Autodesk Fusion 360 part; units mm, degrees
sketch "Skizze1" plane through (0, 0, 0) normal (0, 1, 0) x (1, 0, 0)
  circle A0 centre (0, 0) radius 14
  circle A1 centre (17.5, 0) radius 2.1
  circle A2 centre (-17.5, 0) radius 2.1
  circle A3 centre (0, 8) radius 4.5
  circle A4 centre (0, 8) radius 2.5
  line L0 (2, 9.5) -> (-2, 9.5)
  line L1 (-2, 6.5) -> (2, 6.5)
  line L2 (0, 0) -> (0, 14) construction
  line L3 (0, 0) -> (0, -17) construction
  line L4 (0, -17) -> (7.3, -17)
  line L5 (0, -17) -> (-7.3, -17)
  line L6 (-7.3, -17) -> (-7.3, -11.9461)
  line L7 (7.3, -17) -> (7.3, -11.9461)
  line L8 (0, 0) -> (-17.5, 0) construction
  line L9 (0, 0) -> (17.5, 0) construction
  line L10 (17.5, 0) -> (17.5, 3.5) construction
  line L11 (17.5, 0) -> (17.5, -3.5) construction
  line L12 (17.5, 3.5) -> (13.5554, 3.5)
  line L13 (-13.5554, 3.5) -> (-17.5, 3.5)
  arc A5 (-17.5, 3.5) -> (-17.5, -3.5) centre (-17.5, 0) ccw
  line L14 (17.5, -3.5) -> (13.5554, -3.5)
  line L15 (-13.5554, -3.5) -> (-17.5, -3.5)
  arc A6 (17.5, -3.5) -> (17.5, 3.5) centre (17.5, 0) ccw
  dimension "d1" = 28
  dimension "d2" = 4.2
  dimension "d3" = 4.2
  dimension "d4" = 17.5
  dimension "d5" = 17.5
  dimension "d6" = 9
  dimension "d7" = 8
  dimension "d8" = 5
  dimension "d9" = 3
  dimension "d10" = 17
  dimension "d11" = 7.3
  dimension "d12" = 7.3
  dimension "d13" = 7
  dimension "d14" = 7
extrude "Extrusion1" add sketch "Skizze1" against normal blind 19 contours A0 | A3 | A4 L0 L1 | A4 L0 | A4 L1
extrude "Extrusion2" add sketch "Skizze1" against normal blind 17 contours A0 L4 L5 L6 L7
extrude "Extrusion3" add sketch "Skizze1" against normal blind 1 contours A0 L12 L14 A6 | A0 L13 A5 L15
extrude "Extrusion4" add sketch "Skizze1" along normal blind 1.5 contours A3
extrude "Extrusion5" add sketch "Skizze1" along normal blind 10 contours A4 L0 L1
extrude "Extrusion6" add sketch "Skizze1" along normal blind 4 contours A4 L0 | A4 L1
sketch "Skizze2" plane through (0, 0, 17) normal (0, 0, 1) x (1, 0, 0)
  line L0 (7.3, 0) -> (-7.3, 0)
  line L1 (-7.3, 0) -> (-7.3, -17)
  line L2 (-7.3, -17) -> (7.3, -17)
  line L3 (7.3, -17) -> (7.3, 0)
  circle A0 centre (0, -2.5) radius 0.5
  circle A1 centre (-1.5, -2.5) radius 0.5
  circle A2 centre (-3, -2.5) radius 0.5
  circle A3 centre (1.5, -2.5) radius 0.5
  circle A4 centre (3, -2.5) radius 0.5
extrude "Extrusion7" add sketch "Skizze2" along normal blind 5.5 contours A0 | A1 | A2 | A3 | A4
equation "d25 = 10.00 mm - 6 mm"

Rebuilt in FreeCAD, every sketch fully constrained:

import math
import FreeCAD as App
import Part
import Sketcher

V = App.Vector

doc = App.newDocument("Part")
body = doc.addObject("PartDesign::Body", "Body")

sketch1 = doc.addObject("Sketcher::SketchObject", "Sketch")
body.addObject(sketch1)
sketch1.AttachmentSupport = (doc.XZ_Plane, [""])
sketch1.MapMode = "FlatFace"
sketch1.addGeometry(Part.Circle(V(0, 0, 0), V(0, 0, 1), 14), False)
sketch1.addConstraint(Sketcher.Constraint("Coincident", 0, 3, -1, 1))
sketch1.addConstraint(Sketcher.Constraint("Diameter", 0, 28.0))
pad1 = doc.addObject("PartDesign::Pad", "Pad")
body.addObject(pad1)
pad1.Profile = sketch1
pad1.Length = 19

sketch2 = doc.addObject("Sketcher::SketchObject", "Sketch001")
body.addObject(sketch2)
sketch2.AttachmentSupport = (doc.XZ_Plane, [""])
sketch2.MapMode = "FlatFace"
sketch2.addGeometry(Part.LineSegment(V(7, 17, 0), V(7, 12, 0)), False)
sketch2.addGeometry(Part.ArcOfCircle(Part.Circle(V(0, 0, 0), V(0, 0, 1), 14), math.radians(59), math.radians(121)), False)
sketch2.addGeometry(Part.LineSegment(V(-7, 12, 0), V(-7, 17, 0)), False)
sketch2.addGeometry(Part.LineSegment(V(-7, 17, 0), V(7, 17, 0)), False)
sketch2.addConstraint(Sketcher.Constraint("Coincident", 0, 2, 1, 1))
sketch2.addConstraint(Sketcher.Constraint("Coincident", 1, 2, 2, 1))
sketch2.addConstraint(Sketcher.Constraint("Coincident", 2, 2, 3, 1))
sketch2.addConstraint(Sketcher.Constraint("Coincident", 3, 2, 0, 1))
sketch2.addConstraint(Sketcher.Constraint("Vertical", 0))
sketch2.addConstraint(Sketcher.Constraint("Vertical", 2))
sketch2.addConstraint(Sketcher.Constraint("Horizontal", 3))
sketch2.addConstraint(Sketcher.Constraint("Coincident", 1, 3, -1, 1))
sketch2.addConstraint(Sketcher.Constraint("Horizontal", 0, 2, 1, 2))
sketch2.addConstraint(Sketcher.Constraint("Radius", 1, 14.0))
sketch2.addConstraint(Sketcher.Constraint("DistanceY", -1, 1, 2, 2, 17.0))
sketch2.addConstraint(Sketcher.Constraint("DistanceX", -1, 1, 0, 2, 7.3))
pad2 = doc.addObject("PartDesign::Pad", "Pad001")
body.addObject(pad2)
pad2.Profile = sketch2
pad2.Length = 17

sketch3 = doc.addObject("Sketcher::SketchObject", "Sketch002")
body.addObject(sketch3)
sketch3.AttachmentSupport = (doc.XZ_Plane, [""])
sketch3.MapMode = "FlatFace"
sketch3.addGeometry(Part.ArcOfCircle(Part.Circle(V(0, 0, 0), V(0, 0, 1), 14), math.radians(-14), math.radians(14)), False)
sketch3.addGeometry(Part.LineSegment(V(13.6, 3.5, 0), V(17.5, 3.5, 0)), False)
sketch3.addGeometry(Part.ArcOfCircle(Part.Circle(V(17.5, 0, 0), V(0, 0, 1), 3.5), math.radians(-90), math.radians(90)), False)
sketch3.addGeometry(Part.LineSegment(V(17.5, -3.5, 0), V(13.6, -3.5, 0)), False)
sketch3.addGeometry(Part.Circle(V(17.5, 0, 0), V(0, 0, 1), 2.1), False)
sketch3.addGeometry(Part.ArcOfCircle(Part.Circle(V(0, 0, 0), V(0, 0, 1), 14), math.radians(166), math.radians(194)), False)
sketch3.addGeometry(Part.LineSegment(V(-13.6, -3.5, 0), V(-17.5, -3.5, 0)), False)
sketch3.addGeometry(Part.ArcOfCircle(Part.Circle(V(-17.5, 0, 0), V(0, 0, 1), 3.5), math.radians(90), math.radians(270)), False)
sketch3.addGeometry(Part.LineSegment(V(-17.5, 3.5, 0), V(-13.6, 3.5, 0)), False)
sketch3.addGeometry(Part.Circle(V(-17.5, 0, 0), V(0, 0, 1), 2.1), False)
sketch3.addConstraint(Sketcher.Constraint("Coincident", 0, 2, 1, 1))
sketch3.addConstraint(Sketcher.Constraint("Tangent", 1, 2, 2, 2))
sketch3.addConstraint(Sketcher.Constraint("Tangent", 2, 1, 3, 1))
sketch3.addConstraint(Sketcher.Constraint("Coincident", 3, 2, 0, 1))
sketch3.addConstraint(Sketcher.Constraint("Coincident", 5, 2, 6, 1))
sketch3.addConstraint(Sketcher.Constraint("Tangent", 6, 2, 7, 2))
sketch3.addConstraint(Sketcher.Constraint("Tangent", 7, 1, 8, 1))
sketch3.addConstraint(Sketcher.Constraint("Coincident", 8, 2, 5, 1))
sketch3.addConstraint(Sketcher.Constraint("Horizontal", 1))
sketch3.addConstraint(Sketcher.Constraint("Horizontal", 3))
sketch3.addConstraint(Sketcher.Constraint("Horizontal", 6))
sketch3.addConstraint(Sketcher.Constraint("Horizontal", 8))
sketch3.addConstraint(Sketcher.Constraint("Coincident", 0, 3, -1, 1))
sketch3.addConstraint(Sketcher.Constraint("Coincident", 5, 3, -1, 1))
sketch3.addConstraint(Sketcher.Constraint("Coincident", 4, 3, 2, 3))
sketch3.addConstraint(Sketcher.Constraint("Coincident", 9, 3, 7, 3))
sketch3.addConstraint(Sketcher.Constraint("Equal", 0, 5))
sketch3.addConstraint(Sketcher.Constraint("Equal", 2, 7))
sketch3.addConstraint(Sketcher.Constraint("Equal", 4, 9))
sketch3.addConstraint(Sketcher.Constraint("Symmetric", 2, 3, 7, 3, -1, 1))
sketch3.addConstraint(Sketcher.Constraint("PointOnObject", 2, 3, -1))
sketch3.addConstraint(Sketcher.Constraint("Radius", 0, 14.0))
sketch3.addConstraint(Sketcher.Constraint("Diameter", 4, 4.2))
sketch3.addConstraint(Sketcher.Constraint("Radius", 2, 3.5))
sketch3.addConstraint(Sketcher.Constraint("DistanceX", -1, 1, 2, 3, 17.5))
pad3 = doc.addObject("PartDesign::Pad", "Pad002")
body.addObject(pad3)
pad3.Profile = sketch3
pad3.Length = 1

sketch4 = doc.addObject("Sketcher::SketchObject", "Sketch003")
body.addObject(sketch4)
sketch4.AttachmentSupport = (doc.XZ_Plane, [""])
sketch4.MapMode = "FlatFace"
sketch4.addGeometry(Part.Circle(V(0, -8, 0), V(0, 0, 1), 4.5), False)
sketch4.addGeometry(Part.Circle(V(0, -8, 0), V(0, 0, 1), 2.5), False)
sketch4.addConstraint(Sketcher.Constraint("Coincident", 1, 3, 0, 3))
sketch4.addConstraint(Sketcher.Constraint("PointOnObject", 0, 3, -2))
sketch4.addConstraint(Sketcher.Constraint("Diameter", 0, 9.0))
sketch4.addConstraint(Sketcher.Constraint("Diameter", 1, 5.0))
sketch4.addConstraint(Sketcher.Constraint("DistanceY", 0, 3, -1, 1, 8.0))
pad4 = doc.addObject("PartDesign::Pad", "Pad003")
body.addObject(pad4)
pad4.Profile = sketch4
pad4.Length = 1.5
pad4.Reversed = True

sketch5 = doc.addObject("Sketcher::SketchObject", "Sketch004")
body.addObject(sketch5)
sketch5.AttachmentSupport = (doc.XZ_Plane, [""])
sketch5.MapMode = "FlatFace"
sketch5.addGeometry(Part.ArcOfCircle(Part.Circle(V(0, -8, 0), V(0, 0, 1), 2.5), math.radians(-37), math.radians(37)), False)
sketch5.addGeometry(Part.LineSegment(V(2, -9.5, 0), V(-2, -9.5, 0)), False)
sketch5.addGeometry(Part.ArcOfCircle(Part.Circle(V(0, -8, 0), V(0, 0, 1), 2.5), math.radians(143), math.radians(217)), False)
sketch5.addGeometry(Part.LineSegment(V(-2, -6.5, 0), V(2, -6.5, 0)), False)
sketch5.addConstraint(Sketcher.Constraint("Coincident", 0, 1, 1, 1))
sketch5.addConstraint(Sketcher.Constraint("Coincident", 1, 2, 2, 2))
sketch5.addConstraint(Sketcher.Constraint("Coincident", 2, 1, 3, 1))
sketch5.addConstraint(Sketcher.Constraint("Coincident", 3, 2, 0, 2))
sketch5.addConstraint(Sketcher.Constraint("Horizontal", 1))
sketch5.addConstraint(Sketcher.Constraint("Horizontal", 3))
sketch5.addConstraint(Sketcher.Constraint("Coincident", 2, 3, 0, 3))
sketch5.addConstraint(Sketcher.Constraint("Equal", 0, 2))
sketch5.addConstraint(Sketcher.Constraint("PointOnObject", 0, 3, -2))
sketch5.addConstraint(Sketcher.Constraint("Vertical", 1, 2, 2, 1))
sketch5.addConstraint(Sketcher.Constraint("Radius", 0, 2.5))
sketch5.addConstraint(Sketcher.Constraint("DistanceY", 0, 3, -1, 1, 8.0))
sketch5.addConstraint(Sketcher.Constraint("DistanceY", 1, 2, 2, 1, 3.0))
pad5 = doc.addObject("PartDesign::Pad", "Pad004")
body.addObject(pad5)
pad5.Profile = sketch5
pad5.Length = 10
pad5.Reversed = True

sketch6 = doc.addObject("Sketcher::SketchObject", "Sketch005")
body.addObject(sketch6)
sketch6.AttachmentSupport = (doc.XZ_Plane, [""])
sketch6.MapMode = "FlatFace"
sketch6.addGeometry(Part.LineSegment(V(-2, -9.5, 0), V(2, -9.5, 0)), False)
sketch6.addGeometry(Part.ArcOfCircle(Part.Circle(V(0, -8, 0), V(0, 0, 1), 2.5), math.radians(-143), math.radians(-37)), False)
sketch6.addGeometry(Part.ArcOfCircle(Part.Circle(V(0, -8, 0), V(0, 0, 1), 2.5), math.radians(37), math.radians(143)), False)
sketch6.addGeometry(Part.LineSegment(V(2, -6.5, 0), V(-2, -6.5, 0)), False)
sketch6.addConstraint(Sketcher.Constraint("Coincident", 0, 1, 1, 1))
sketch6.addConstraint(Sketcher.Constraint("Coincident", 1, 2, 0, 2))
sketch6.addConstraint(Sketcher.Constraint("Coincident", 2, 1, 3, 1))
sketch6.addConstraint(Sketcher.Constraint("Coincident", 3, 2, 2, 2))
sketch6.addConstraint(Sketcher.Constraint("Horizontal", 0))
sketch6.addConstraint(Sketcher.Constraint("Horizontal", 3))
sketch6.addConstraint(Sketcher.Constraint("Coincident", 2, 3, 1, 3))
sketch6.addConstraint(Sketcher.Constraint("Equal", 1, 2))
sketch6.addConstraint(Sketcher.Constraint("PointOnObject", 1, 3, -2))
sketch6.addConstraint(Sketcher.Constraint("Vertical", 1, 2, 2, 1))
sketch6.addConstraint(Sketcher.Constraint("Radius", 1, 2.5))
sketch6.addConstraint(Sketcher.Constraint("DistanceY", 1, 3, -1, 1, 8.0))
sketch6.addConstraint(Sketcher.Constraint("DistanceY", 1, 2, 2, 1, 3.0))
pad6 = doc.addObject("PartDesign::Pad", "Pad005")
body.addObject(pad6)
pad6.Profile = sketch6
pad6.Length = 4
pad6.Reversed = True

sketch7 = doc.addObject("Sketcher::SketchObject", "Sketch006")
body.addObject(sketch7)
sketch7.AttachmentSupport = (doc.XY_Plane, [""])
sketch7.MapMode = "FlatFace"
sketch7.AttachmentOffset = App.Placement(V(0, 0, 17), App.Rotation())
sketch7.addGeometry(Part.Circle(V(0, -2.5, 0), V(0, 0, 1), 0.5), False)
sketch7.addGeometry(Part.Circle(V(-1.5, -2.5, 0), V(0, 0, 1), 0.5), False)
sketch7.addGeometry(Part.Circle(V(-3, -2.5, 0), V(0, 0, 1), 0.5), False)
sketch7.addGeometry(Part.Circle(V(1.5, -2.5, 0), V(0, 0, 1), 0.5), False)
sketch7.addGeometry(Part.Circle(V(3, -2.5, 0), V(0, 0, 1), 0.5), False)
sketch7.addConstraint(Sketcher.Constraint("Equal", 0, 1))
sketch7.addConstraint(Sketcher.Constraint("Equal", 1, 2))
sketch7.addConstraint(Sketcher.Constraint("Equal", 2, 3))
sketch7.addConstraint(Sketcher.Constraint("Equal", 3, 4))
sketch7.addConstraint(Sketcher.Constraint("Symmetric", 1, 3, 3, 3, -2))
sketch7.addConstraint(Sketcher.Constraint("Symmetric", 2, 3, 4, 3, -2))
sketch7.addConstraint(Sketcher.Constraint("PointOnObject", 0, 3, -2))
sketch7.addConstraint(Sketcher.Constraint("Horizontal", 0, 3, 1, 3))
sketch7.addConstraint(Sketcher.Constraint("Horizontal", 1, 3, 2, 3))
sketch7.addConstraint(Sketcher.Constraint("Diameter", 0, 1.0))
sketch7.addConstraint(Sketcher.Constraint("DistanceX", 2, 3, -1, 1, 3.0))
sketch7.addConstraint(Sketcher.Constraint("DistanceX", 1, 3, 3, 3, 3.0))
sketch7.addConstraint(Sketcher.Constraint("DistanceY", 0, 3, -1, 1, 2.5))
pad7 = doc.addObject("PartDesign::Pad", "Pad006")
body.addObject(pad7)
pad7.Profile = sketch7
pad7.Length = 5.5

doc.recompute()
